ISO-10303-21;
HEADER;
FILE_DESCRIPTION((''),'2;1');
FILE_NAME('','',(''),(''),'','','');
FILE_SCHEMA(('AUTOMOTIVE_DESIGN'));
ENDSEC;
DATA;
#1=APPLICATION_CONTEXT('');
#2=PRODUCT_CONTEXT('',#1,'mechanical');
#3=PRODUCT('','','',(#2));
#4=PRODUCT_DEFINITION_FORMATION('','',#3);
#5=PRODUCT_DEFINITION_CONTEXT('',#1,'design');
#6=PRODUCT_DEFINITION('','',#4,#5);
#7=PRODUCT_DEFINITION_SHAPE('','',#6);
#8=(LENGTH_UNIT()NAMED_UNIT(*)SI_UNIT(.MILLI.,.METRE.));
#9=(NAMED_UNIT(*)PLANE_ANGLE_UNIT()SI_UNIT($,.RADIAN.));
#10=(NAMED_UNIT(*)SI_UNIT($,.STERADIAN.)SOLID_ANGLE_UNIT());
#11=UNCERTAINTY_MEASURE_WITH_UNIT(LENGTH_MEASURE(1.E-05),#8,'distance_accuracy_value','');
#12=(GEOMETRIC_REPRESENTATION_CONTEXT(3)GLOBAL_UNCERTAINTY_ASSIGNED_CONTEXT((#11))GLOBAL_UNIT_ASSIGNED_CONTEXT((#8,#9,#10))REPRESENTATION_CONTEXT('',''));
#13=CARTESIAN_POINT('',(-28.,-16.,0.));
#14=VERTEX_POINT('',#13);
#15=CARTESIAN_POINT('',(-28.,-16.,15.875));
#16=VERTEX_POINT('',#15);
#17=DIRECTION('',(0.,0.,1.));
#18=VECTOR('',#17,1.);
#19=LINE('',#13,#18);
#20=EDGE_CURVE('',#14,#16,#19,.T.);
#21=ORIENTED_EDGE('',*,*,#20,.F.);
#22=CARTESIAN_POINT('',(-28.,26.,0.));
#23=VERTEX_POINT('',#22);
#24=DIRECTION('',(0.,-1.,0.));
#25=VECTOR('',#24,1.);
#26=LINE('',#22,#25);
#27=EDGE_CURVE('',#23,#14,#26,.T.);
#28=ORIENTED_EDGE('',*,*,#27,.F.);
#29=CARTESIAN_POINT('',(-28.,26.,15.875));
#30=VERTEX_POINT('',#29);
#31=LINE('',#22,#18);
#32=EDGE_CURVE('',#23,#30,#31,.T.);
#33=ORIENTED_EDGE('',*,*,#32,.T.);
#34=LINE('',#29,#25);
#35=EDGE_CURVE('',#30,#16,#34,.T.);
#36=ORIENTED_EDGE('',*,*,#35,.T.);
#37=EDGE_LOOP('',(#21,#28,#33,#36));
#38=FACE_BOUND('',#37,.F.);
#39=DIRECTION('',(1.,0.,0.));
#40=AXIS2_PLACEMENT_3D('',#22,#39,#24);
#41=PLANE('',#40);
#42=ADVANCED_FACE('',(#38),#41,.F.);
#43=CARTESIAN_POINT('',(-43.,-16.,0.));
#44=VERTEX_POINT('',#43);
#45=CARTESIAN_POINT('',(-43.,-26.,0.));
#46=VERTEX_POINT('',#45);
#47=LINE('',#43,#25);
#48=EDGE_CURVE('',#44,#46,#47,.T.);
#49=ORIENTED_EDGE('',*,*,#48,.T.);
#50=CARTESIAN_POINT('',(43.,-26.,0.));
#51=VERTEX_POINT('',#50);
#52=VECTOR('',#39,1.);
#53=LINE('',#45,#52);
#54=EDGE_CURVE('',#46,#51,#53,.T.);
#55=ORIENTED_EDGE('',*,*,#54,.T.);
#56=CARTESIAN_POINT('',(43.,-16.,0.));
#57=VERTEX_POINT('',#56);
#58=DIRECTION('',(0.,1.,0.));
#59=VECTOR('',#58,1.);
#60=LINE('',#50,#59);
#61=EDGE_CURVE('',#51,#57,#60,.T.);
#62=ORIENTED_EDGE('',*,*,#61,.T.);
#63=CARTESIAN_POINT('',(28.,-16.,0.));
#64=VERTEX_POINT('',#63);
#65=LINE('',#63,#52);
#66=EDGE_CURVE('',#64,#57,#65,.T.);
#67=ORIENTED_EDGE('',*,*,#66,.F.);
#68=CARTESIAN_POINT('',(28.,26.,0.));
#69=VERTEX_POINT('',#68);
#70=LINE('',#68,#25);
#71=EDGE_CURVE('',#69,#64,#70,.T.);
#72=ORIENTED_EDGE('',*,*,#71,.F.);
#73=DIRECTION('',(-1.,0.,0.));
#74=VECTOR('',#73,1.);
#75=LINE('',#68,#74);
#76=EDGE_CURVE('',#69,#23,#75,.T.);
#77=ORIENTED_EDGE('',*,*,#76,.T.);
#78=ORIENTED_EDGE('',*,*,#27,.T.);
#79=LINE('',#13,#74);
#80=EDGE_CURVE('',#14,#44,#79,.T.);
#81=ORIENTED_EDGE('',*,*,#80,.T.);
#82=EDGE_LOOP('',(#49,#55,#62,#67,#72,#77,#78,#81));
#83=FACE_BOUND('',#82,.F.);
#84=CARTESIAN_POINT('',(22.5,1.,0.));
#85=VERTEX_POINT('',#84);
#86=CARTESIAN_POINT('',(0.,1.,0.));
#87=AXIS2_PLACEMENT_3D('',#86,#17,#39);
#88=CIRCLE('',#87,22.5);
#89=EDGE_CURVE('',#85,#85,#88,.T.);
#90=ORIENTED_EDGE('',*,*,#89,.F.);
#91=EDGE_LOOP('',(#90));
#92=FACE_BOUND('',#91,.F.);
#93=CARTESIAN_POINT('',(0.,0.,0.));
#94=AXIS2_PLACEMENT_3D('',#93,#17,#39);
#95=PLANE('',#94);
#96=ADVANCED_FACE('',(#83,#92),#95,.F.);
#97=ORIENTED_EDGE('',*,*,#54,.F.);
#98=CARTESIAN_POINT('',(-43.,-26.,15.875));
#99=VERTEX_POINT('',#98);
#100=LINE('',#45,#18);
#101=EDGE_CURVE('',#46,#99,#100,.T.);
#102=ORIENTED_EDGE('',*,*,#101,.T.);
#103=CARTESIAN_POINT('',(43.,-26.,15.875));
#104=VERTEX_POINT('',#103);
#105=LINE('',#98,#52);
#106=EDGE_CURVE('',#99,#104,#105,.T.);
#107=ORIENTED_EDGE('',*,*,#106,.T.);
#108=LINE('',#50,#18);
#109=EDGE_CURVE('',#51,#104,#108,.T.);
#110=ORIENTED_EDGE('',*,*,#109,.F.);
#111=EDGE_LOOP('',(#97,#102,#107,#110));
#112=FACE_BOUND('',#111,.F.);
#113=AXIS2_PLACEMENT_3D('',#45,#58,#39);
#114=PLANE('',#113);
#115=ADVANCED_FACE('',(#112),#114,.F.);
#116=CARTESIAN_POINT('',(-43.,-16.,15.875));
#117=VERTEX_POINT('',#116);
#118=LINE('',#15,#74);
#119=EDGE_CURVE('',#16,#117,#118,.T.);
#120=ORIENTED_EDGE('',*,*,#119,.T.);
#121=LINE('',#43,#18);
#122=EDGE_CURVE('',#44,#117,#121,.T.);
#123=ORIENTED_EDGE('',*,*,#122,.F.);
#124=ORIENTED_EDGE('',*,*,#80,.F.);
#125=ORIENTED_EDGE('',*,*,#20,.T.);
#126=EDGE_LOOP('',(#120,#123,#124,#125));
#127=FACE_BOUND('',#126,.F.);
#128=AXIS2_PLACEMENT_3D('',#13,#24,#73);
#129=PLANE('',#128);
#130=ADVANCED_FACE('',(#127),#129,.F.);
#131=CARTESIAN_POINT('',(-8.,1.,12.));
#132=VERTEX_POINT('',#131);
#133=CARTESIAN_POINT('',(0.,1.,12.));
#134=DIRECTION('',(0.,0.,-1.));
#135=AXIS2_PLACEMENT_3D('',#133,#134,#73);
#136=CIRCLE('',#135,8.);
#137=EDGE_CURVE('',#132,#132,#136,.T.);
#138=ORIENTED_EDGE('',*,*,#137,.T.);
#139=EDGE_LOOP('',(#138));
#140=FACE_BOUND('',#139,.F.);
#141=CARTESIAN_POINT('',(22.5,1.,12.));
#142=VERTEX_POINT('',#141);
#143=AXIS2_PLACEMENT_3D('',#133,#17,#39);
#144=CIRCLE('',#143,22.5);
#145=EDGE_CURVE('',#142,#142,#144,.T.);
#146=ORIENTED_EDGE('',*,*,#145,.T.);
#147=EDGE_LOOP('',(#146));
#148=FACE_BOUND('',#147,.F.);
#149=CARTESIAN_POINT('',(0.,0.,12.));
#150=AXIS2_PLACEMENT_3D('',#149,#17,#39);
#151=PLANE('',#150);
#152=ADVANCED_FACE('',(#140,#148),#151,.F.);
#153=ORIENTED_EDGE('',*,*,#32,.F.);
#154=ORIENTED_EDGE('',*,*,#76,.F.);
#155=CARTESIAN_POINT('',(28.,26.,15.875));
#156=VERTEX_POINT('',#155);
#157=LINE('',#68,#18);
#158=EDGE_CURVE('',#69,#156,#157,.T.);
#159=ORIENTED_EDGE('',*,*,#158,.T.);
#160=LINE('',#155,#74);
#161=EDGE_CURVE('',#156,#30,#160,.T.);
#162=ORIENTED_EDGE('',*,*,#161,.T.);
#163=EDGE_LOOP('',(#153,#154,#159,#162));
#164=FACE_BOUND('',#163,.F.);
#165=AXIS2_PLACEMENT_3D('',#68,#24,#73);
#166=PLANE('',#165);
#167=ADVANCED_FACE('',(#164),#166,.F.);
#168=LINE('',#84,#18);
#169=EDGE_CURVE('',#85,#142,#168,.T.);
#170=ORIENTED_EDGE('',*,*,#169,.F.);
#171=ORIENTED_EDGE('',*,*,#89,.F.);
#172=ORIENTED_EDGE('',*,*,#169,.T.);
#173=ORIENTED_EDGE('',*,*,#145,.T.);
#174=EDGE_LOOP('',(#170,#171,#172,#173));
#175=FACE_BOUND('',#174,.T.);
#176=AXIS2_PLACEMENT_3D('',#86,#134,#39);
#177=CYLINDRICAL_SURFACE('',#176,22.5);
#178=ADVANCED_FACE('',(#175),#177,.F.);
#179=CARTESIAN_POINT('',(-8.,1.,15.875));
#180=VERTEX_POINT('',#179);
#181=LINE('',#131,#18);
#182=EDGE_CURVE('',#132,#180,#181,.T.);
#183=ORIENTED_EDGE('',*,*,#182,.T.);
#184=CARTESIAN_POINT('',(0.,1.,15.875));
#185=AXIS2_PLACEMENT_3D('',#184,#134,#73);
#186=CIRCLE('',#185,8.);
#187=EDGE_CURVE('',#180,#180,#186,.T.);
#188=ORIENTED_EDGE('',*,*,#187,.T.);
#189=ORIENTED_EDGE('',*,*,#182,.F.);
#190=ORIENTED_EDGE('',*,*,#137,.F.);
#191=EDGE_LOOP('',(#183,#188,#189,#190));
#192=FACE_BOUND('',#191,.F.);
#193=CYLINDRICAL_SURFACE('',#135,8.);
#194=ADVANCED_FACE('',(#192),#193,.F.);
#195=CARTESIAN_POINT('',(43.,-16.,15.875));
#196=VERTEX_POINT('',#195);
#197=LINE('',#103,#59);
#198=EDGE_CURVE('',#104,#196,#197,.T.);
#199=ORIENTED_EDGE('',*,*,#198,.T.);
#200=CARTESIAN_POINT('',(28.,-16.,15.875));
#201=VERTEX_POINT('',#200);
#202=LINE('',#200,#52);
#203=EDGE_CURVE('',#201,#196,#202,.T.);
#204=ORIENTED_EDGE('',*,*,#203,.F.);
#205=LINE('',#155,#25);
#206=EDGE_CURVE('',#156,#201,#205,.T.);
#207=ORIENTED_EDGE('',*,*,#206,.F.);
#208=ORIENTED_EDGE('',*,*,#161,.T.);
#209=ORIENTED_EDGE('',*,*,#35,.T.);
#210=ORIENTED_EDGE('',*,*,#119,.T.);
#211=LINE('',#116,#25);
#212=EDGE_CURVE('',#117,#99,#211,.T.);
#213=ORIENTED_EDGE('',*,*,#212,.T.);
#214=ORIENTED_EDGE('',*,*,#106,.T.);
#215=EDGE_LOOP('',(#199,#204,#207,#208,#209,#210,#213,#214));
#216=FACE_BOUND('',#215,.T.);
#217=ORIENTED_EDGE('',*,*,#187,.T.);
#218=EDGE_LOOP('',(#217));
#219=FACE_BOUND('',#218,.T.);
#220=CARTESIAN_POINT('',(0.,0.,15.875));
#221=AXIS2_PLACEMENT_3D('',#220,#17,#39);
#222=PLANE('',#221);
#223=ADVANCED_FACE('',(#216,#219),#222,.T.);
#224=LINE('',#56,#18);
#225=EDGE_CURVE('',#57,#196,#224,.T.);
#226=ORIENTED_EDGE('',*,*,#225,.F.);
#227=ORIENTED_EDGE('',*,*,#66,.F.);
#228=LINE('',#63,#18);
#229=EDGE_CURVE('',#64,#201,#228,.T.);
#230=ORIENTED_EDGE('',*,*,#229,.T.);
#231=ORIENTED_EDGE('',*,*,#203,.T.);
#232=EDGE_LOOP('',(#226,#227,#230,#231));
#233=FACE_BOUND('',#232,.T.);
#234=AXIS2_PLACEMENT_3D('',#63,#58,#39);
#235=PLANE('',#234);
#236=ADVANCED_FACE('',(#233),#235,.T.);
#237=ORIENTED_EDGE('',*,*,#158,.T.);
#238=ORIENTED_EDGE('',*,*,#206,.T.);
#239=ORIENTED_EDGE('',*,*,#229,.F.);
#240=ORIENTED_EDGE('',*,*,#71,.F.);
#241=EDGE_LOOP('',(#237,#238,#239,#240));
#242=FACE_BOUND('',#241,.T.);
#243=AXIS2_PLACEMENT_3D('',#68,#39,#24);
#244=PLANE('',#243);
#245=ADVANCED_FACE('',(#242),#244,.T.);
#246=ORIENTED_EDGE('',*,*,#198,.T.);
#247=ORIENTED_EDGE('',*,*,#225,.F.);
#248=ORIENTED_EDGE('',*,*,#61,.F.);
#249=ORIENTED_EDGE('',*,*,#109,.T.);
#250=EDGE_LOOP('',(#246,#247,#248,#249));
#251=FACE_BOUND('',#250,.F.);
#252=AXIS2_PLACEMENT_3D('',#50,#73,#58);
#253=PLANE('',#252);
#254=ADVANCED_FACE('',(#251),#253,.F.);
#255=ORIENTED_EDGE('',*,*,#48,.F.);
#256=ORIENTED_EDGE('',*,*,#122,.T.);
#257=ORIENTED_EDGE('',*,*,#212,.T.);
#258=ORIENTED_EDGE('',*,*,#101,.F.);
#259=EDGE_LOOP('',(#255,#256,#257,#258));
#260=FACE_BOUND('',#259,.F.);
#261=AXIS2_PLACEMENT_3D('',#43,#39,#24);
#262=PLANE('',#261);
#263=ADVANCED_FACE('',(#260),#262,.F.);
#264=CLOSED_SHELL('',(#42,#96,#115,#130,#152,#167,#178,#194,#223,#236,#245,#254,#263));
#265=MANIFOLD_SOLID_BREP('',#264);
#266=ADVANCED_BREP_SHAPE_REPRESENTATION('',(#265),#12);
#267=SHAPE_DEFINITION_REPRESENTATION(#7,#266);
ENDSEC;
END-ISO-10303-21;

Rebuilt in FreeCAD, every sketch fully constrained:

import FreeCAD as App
import Part
import Sketcher

V = App.Vector
Q = App.Units.Quantity


def add_polygon(sketch, points):
    """Adds a closed chain of lines whose ends are joined by coincident constraints."""
    first, n = sketch.GeometryCount, len(points)
    for a, b in zip(points, points[1:] + points[:1]):
        sketch.addGeometry(Part.LineSegment(App.Vector(*a, 0), App.Vector(*b, 0)), False)
    for i in range(n):
        sketch.addConstraint(Sketcher.Constraint("Coincident", first + i, 2, first + (i + 1) % n, 1))

doc = App.newDocument("Part")
params = doc.addObject("Spreadsheet::Sheet", "Params")
for row, (alias, value) in enumerate([
    ("sketch1_diameter", "45 mm"),
    ("sketch1_width", "86 mm"),
    ("sketch1_width2", "56 mm"),
    ("sketch1_height", "10 mm"),
    ("sketch1_height2", "42 mm"),
    ("pad1_length", "15.875 mm"),
    ("sketch2_diameter", "45 mm"),
    ("pad2_length", "3.875 mm"),
    ("sketch3_diameter", "16 mm"),
    ("pocket1_length", "3.875 mm"),
], start=1):
    params.set(f"A{row}", alias)
    params.set(f"B{row}", "=" + value)
    params.setAlias(f"B{row}", alias)

body = doc.addObject("PartDesign::Body", "Body")

# Sketch on XY plane
sketch1 = body.newObject("Sketcher::SketchObject", "Sketch")
sketch1.AttachmentSupport = (doc.getObject("XY_Plane"), [""])
sketch1.MapMode = "FlatFace"
add_polygon(sketch1, [(-43, -16), (-43, -26), (43, -26), (43, -16), (28, -16), (28, 26), (-28, 26), (-28, -16)])  # lines 0-7
sketch1.addGeometry(Part.Circle(V(0, 1, 0), V(0, 0, 1), 22), False)  # 8
sketch1.addConstraint(Sketcher.Constraint("Vertical", 0))
sketch1.addConstraint(Sketcher.Constraint("Horizontal", 1))
sketch1.addConstraint(Sketcher.Constraint("Vertical", 2))
sketch1.addConstraint(Sketcher.Constraint("Horizontal", 3))
sketch1.addConstraint(Sketcher.Constraint("Vertical", 4))
sketch1.addConstraint(Sketcher.Constraint("Horizontal", 5))
sketch1.addConstraint(Sketcher.Constraint("Vertical", 6))
sketch1.addConstraint(Sketcher.Constraint("Horizontal", 7))
sketch1.addConstraint(Sketcher.Constraint("Symmetric", 3, 2, 6, 2, -2))
sketch1.addConstraint(Sketcher.Constraint("PointOnObject", 8, 3, -2))
sketch1.addConstraint(Sketcher.Constraint("Equal", 3, 7))
sketch1.addConstraint(Sketcher.Constraint("Diameter", 8, Q("45 mm")))
sketch1.addConstraint(Sketcher.Constraint("DistanceX", 1, 1, 1, 2, Q("86 mm")))
sketch1.addConstraint(Sketcher.Constraint("DistanceX", 5, 2, 5, 1, Q("56 mm")))
sketch1.addConstraint(Sketcher.Constraint("DistanceY", 0, 2, 0, 1, Q("10 mm")))
sketch1.addConstraint(Sketcher.Constraint("DistanceY", 4, 1, 4, 2, Q("42 mm")))
sketch1.addConstraint(Sketcher.Constraint("DistanceY", 0, 2, 8, 3, Q("27 mm")))
sketch1.addConstraint(Sketcher.Constraint("DistanceY", -1, 1, 8, 3, Q("1 mm")))
sketch1.setExpression("Constraints[19]", "Params.sketch1_diameter")
sketch1.setExpression("Constraints[20]", "Params.sketch1_width")
sketch1.setExpression("Constraints[21]", "Params.sketch1_width2")
sketch1.setExpression("Constraints[22]", "Params.sketch1_height")
sketch1.setExpression("Constraints[23]", "Params.sketch1_height2")
pad1 = body.newObject("PartDesign::Pad", "Pad")
pad1.Profile = sketch1
pad1.setExpression("Length", "Params.pad1_length")

# Sketch on XY plane
sketch2 = body.newObject("Sketcher::SketchObject", "Sketch001")
sketch2.AttachmentSupport = (doc.getObject("XY_Plane"), [""])
sketch2.MapMode = "FlatFace"
sketch2.AttachmentOffset = App.Placement(V(0, 0, 15.875), App.Rotation())
sketch2.addGeometry(Part.Circle(V(0, 1, 0), V(0, 0, 1), 22), False)
sketch2.addConstraint(Sketcher.Constraint("PointOnObject", 0, 3, -2))
sketch2.addConstraint(Sketcher.Constraint("Diameter", 0, Q("45 mm")))
sketch2.addConstraint(Sketcher.Constraint("DistanceY", -1, 1, 0, 3, Q("1 mm")))
sketch2.setExpression("Constraints[1]", "Params.sketch2_diameter")
pad2 = body.newObject("PartDesign::Pad", "Pad001")
pad2.Profile = sketch2
pad2.setExpression("Length", "Params.pad2_length")
pad2.Reversed = True

# Sketch on XY plane
sketch3 = body.newObject("Sketcher::SketchObject", "Sketch002")
sketch3.AttachmentSupport = (doc.getObject("XY_Plane"), [""])
sketch3.MapMode = "FlatFace"
sketch3.AttachmentOffset = App.Placement(V(0, 0, 12), App.Rotation())
sketch3.addGeometry(Part.Circle(V(0, 1, 0), V(0, 0, 1), 8), False)
sketch3.addConstraint(Sketcher.Constraint("PointOnObject", 0, 3, -2))
sketch3.addConstraint(Sketcher.Constraint("Diameter", 0, Q("16 mm")))
sketch3.addConstraint(Sketcher.Constraint("DistanceY", -1, 1, 0, 3, Q("1 mm")))
sketch3.setExpression("Constraints[1]", "Params.sketch3_diameter")
pocket1 = body.newObject("PartDesign::Pocket", "Pocket")
pocket1.Profile = sketch3
pocket1.setExpression("Length", "Params.pocket1_length")
pocket1.Reversed = True

doc.recompute()
